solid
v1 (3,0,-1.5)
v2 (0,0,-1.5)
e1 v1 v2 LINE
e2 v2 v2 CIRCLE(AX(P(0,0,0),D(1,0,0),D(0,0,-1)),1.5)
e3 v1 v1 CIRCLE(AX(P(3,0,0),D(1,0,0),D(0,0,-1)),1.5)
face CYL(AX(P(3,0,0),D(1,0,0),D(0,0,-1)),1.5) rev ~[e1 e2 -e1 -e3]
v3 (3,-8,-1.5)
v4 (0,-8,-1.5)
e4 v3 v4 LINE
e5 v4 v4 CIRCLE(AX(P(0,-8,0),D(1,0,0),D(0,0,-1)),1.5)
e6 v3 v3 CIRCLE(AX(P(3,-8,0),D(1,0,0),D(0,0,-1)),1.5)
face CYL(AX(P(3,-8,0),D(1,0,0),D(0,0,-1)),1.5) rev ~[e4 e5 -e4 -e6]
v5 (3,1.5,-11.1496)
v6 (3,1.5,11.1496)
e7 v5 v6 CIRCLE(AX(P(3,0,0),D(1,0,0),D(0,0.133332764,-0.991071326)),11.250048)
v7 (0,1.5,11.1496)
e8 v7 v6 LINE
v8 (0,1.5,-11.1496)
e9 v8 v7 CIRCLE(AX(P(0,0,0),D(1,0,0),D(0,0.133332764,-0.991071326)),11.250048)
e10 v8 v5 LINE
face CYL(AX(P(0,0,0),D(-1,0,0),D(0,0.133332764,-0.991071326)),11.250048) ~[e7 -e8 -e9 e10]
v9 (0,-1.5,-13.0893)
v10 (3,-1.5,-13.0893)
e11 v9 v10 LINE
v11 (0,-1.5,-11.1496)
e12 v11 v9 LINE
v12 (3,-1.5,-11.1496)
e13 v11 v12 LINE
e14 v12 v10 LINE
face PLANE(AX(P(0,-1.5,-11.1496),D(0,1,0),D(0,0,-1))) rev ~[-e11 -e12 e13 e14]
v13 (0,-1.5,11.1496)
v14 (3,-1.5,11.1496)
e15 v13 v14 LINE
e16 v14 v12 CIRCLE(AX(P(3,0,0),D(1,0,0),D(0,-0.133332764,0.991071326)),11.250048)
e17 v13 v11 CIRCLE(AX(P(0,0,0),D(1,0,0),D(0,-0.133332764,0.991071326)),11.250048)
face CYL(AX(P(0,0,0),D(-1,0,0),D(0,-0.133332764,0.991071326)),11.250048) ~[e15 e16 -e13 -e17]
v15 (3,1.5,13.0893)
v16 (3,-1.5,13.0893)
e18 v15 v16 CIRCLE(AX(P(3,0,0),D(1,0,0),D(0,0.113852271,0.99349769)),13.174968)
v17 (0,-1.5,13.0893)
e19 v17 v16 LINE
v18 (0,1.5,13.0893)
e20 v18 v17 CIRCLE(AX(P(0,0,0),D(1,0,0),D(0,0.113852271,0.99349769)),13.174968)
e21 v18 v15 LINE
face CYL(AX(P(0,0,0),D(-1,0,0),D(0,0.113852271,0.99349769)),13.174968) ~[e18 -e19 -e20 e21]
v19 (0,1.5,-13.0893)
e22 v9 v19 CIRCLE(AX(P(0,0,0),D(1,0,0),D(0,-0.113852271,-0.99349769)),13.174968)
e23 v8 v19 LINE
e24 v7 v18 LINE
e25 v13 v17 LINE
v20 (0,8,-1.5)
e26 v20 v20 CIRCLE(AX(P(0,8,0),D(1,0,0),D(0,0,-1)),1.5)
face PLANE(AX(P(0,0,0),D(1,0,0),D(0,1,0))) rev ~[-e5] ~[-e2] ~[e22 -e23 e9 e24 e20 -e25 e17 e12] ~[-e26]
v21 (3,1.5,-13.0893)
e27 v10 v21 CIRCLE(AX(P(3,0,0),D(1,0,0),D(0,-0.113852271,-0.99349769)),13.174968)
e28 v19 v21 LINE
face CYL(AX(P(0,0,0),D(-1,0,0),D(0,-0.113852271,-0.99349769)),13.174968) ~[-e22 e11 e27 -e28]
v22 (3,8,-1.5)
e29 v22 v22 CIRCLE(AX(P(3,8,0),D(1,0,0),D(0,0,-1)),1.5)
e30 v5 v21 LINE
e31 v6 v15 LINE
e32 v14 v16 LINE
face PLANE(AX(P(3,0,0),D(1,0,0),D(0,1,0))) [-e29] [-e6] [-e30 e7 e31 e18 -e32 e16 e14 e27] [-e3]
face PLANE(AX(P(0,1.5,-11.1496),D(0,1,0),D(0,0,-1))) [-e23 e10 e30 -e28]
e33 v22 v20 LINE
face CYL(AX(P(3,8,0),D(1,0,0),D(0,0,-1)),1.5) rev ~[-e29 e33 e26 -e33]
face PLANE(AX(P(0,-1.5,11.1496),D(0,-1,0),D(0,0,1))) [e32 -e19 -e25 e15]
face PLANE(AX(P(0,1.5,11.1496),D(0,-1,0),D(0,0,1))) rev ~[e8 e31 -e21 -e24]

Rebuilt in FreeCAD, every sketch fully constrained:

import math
import FreeCAD as App
import Part
import Sketcher
from FreeCAD import Vector

doc = App.newDocument("Part")
body = doc.addObject("PartDesign::Body", "Body")

# Sketch on YZ plane
sketch1 = doc.addObject("Sketcher::SketchObject", "Sketch")
body.addObject(sketch1)
sketch1.AttachmentSupport = (doc.YZ_Plane, [""])
sketch1.MapMode = "FlatFace"
sketch1.addGeometry([
    Part.LineSegment(Vector(1.5, -13.0893, 0), Vector(1.5, -11.1496, 0)),  # 0
    Part.ArcOfCircle(Part.Circle(Vector(0, 0, 0), Vector(0, 0, 1), 11.250048), math.radians(-82.337777), math.radians(82.337777)),  # 1
    Part.LineSegment(Vector(1.5, 11.1496, 0), Vector(1.5, 13.0893, 0)),  # 2
    Part.ArcOfCircle(Part.Circle(Vector(0, 0, 0), Vector(0, 0, 1), 13.174968), math.radians(83.46257), math.radians(96.53743)),  # 3
    Part.LineSegment(Vector(-1.5, 13.0893, 0), Vector(-1.5, 11.1496, 0)),  # 4
    Part.ArcOfCircle(Part.Circle(Vector(0, 0, 0), Vector(0, 0, 1), 11.250048), math.radians(97.662223), math.radians(262.337777)),  # 5
    Part.LineSegment(Vector(-1.5, -11.1496, 0), Vector(-1.5, -13.0893, 0)),  # 6
    Part.ArcOfCircle(Part.Circle(Vector(0, 0, 0), Vector(0, 0, 1), 13.174968), math.radians(-96.53743), math.radians(-83.46257)),  # 7
], False)
sketch1.addConstraint([
    Sketcher.Constraint("Coincident", 0, 2, 1, 1),
    Sketcher.Constraint("Coincident", 1, 2, 2, 1),
    Sketcher.Constraint("Coincident", 2, 2, 3, 1),
    Sketcher.Constraint("Coincident", 3, 2, 4, 1),
    Sketcher.Constraint("Coincident", 4, 2, 5, 1),
    Sketcher.Constraint("Coincident", 5, 2, 6, 1),
    Sketcher.Constraint("Coincident", 6, 2, 7, 1),
    Sketcher.Constraint("Coincident", 7, 2, 0, 1),
    Sketcher.Constraint("Vertical", 0),
    Sketcher.Constraint("Vertical", 2),
    Sketcher.Constraint("Vertical", 4),
    Sketcher.Constraint("Vertical", 6),
    Sketcher.Constraint("Coincident", 1, 3, -1, 1),
    Sketcher.Constraint("Coincident", 3, 3, -1, 1),
    Sketcher.Constraint("Coincident", 5, 3, -1, 1),
    Sketcher.Constraint("Coincident", 7, 3, -1, 1),
    Sketcher.Constraint("Equal", 1, 5),
    Sketcher.Constraint("Equal", 3, 7),
    Sketcher.Constraint("Horizontal", 2, 2, 3, 2),
    Sketcher.Constraint("Horizontal", 0, 2, 5, 2),
    Sketcher.Constraint("Vertical", 0, 2, 1, 2),
    Sketcher.Constraint("Radius", 1, 11.25),
    Sketcher.Constraint("Radius", 3, 13.175),
    Sketcher.Constraint("DistanceX", 3, 2, 2, 2, 3.0),
])
pad1 = doc.addObject("PartDesign::Pad", "Pad")
body.addObject(pad1)
pad1.Profile = sketch1
pad1.Length = 3

# Sketch on YZ plane
sketch2 = doc.addObject("Sketcher::SketchObject", "Sketch001")
body.addObject(sketch2)
sketch2.AttachmentSupport = (doc.YZ_Plane, [""])
sketch2.MapMode = "FlatFace"
sketch2.AttachmentOffset = App.Placement(Vector(0, 0, 3), App.Rotation())
sketch2.addGeometry([
    Part.Circle(Vector(8, 0, 0), Vector(0, 0, 1), 1.5),
    Part.Circle(Vector(-8, 0, 0), Vector(0, 0, 1), 1.5),
], False)
sketch2.addConstraint([
    Sketcher.Constraint("Equal", 0, 1),
    Sketcher.Constraint("Symmetric", 0, 3, 1, 3, -1, 1),
    Sketcher.Constraint("PointOnObject", 0, 3, -1),
    Sketcher.Constraint("Diameter", 0, 3.0),
    Sketcher.Constraint("DistanceX", -1, 1, 0, 3, 8.0),
])
pocket1 = doc.addObject("PartDesign::Pocket", "Pocket")
body.addObject(pocket1)
pocket1.Profile = sketch2
pocket1.Length = 3

# Sketch on YZ plane
sketch3 = doc.addObject("Sketcher::SketchObject", "Sketch002")
body.addObject(sketch3)
sketch3.AttachmentSupport = (doc.YZ_Plane, [""])
sketch3.MapMode = "FlatFace"
sketch3.AttachmentOffset = App.Placement(Vector(0, 0, 3), App.Rotation())
sketch3.addGeometry(Part.Circle(Vector(0, 0, 0), Vector(0, 0, 1), 1.5), False)
sketch3.addConstraint([
    Sketcher.Constraint("Coincident", 0, 3, -1, 1),
    Sketcher.Constraint("Diameter", 0, 3.0),
])
pocket2 = doc.addObject("PartDesign::Pocket", "Pocket001")
body.addObject(pocket2)
pocket2.Profile = sketch3
pocket2.Length = 10

doc.recompute()
